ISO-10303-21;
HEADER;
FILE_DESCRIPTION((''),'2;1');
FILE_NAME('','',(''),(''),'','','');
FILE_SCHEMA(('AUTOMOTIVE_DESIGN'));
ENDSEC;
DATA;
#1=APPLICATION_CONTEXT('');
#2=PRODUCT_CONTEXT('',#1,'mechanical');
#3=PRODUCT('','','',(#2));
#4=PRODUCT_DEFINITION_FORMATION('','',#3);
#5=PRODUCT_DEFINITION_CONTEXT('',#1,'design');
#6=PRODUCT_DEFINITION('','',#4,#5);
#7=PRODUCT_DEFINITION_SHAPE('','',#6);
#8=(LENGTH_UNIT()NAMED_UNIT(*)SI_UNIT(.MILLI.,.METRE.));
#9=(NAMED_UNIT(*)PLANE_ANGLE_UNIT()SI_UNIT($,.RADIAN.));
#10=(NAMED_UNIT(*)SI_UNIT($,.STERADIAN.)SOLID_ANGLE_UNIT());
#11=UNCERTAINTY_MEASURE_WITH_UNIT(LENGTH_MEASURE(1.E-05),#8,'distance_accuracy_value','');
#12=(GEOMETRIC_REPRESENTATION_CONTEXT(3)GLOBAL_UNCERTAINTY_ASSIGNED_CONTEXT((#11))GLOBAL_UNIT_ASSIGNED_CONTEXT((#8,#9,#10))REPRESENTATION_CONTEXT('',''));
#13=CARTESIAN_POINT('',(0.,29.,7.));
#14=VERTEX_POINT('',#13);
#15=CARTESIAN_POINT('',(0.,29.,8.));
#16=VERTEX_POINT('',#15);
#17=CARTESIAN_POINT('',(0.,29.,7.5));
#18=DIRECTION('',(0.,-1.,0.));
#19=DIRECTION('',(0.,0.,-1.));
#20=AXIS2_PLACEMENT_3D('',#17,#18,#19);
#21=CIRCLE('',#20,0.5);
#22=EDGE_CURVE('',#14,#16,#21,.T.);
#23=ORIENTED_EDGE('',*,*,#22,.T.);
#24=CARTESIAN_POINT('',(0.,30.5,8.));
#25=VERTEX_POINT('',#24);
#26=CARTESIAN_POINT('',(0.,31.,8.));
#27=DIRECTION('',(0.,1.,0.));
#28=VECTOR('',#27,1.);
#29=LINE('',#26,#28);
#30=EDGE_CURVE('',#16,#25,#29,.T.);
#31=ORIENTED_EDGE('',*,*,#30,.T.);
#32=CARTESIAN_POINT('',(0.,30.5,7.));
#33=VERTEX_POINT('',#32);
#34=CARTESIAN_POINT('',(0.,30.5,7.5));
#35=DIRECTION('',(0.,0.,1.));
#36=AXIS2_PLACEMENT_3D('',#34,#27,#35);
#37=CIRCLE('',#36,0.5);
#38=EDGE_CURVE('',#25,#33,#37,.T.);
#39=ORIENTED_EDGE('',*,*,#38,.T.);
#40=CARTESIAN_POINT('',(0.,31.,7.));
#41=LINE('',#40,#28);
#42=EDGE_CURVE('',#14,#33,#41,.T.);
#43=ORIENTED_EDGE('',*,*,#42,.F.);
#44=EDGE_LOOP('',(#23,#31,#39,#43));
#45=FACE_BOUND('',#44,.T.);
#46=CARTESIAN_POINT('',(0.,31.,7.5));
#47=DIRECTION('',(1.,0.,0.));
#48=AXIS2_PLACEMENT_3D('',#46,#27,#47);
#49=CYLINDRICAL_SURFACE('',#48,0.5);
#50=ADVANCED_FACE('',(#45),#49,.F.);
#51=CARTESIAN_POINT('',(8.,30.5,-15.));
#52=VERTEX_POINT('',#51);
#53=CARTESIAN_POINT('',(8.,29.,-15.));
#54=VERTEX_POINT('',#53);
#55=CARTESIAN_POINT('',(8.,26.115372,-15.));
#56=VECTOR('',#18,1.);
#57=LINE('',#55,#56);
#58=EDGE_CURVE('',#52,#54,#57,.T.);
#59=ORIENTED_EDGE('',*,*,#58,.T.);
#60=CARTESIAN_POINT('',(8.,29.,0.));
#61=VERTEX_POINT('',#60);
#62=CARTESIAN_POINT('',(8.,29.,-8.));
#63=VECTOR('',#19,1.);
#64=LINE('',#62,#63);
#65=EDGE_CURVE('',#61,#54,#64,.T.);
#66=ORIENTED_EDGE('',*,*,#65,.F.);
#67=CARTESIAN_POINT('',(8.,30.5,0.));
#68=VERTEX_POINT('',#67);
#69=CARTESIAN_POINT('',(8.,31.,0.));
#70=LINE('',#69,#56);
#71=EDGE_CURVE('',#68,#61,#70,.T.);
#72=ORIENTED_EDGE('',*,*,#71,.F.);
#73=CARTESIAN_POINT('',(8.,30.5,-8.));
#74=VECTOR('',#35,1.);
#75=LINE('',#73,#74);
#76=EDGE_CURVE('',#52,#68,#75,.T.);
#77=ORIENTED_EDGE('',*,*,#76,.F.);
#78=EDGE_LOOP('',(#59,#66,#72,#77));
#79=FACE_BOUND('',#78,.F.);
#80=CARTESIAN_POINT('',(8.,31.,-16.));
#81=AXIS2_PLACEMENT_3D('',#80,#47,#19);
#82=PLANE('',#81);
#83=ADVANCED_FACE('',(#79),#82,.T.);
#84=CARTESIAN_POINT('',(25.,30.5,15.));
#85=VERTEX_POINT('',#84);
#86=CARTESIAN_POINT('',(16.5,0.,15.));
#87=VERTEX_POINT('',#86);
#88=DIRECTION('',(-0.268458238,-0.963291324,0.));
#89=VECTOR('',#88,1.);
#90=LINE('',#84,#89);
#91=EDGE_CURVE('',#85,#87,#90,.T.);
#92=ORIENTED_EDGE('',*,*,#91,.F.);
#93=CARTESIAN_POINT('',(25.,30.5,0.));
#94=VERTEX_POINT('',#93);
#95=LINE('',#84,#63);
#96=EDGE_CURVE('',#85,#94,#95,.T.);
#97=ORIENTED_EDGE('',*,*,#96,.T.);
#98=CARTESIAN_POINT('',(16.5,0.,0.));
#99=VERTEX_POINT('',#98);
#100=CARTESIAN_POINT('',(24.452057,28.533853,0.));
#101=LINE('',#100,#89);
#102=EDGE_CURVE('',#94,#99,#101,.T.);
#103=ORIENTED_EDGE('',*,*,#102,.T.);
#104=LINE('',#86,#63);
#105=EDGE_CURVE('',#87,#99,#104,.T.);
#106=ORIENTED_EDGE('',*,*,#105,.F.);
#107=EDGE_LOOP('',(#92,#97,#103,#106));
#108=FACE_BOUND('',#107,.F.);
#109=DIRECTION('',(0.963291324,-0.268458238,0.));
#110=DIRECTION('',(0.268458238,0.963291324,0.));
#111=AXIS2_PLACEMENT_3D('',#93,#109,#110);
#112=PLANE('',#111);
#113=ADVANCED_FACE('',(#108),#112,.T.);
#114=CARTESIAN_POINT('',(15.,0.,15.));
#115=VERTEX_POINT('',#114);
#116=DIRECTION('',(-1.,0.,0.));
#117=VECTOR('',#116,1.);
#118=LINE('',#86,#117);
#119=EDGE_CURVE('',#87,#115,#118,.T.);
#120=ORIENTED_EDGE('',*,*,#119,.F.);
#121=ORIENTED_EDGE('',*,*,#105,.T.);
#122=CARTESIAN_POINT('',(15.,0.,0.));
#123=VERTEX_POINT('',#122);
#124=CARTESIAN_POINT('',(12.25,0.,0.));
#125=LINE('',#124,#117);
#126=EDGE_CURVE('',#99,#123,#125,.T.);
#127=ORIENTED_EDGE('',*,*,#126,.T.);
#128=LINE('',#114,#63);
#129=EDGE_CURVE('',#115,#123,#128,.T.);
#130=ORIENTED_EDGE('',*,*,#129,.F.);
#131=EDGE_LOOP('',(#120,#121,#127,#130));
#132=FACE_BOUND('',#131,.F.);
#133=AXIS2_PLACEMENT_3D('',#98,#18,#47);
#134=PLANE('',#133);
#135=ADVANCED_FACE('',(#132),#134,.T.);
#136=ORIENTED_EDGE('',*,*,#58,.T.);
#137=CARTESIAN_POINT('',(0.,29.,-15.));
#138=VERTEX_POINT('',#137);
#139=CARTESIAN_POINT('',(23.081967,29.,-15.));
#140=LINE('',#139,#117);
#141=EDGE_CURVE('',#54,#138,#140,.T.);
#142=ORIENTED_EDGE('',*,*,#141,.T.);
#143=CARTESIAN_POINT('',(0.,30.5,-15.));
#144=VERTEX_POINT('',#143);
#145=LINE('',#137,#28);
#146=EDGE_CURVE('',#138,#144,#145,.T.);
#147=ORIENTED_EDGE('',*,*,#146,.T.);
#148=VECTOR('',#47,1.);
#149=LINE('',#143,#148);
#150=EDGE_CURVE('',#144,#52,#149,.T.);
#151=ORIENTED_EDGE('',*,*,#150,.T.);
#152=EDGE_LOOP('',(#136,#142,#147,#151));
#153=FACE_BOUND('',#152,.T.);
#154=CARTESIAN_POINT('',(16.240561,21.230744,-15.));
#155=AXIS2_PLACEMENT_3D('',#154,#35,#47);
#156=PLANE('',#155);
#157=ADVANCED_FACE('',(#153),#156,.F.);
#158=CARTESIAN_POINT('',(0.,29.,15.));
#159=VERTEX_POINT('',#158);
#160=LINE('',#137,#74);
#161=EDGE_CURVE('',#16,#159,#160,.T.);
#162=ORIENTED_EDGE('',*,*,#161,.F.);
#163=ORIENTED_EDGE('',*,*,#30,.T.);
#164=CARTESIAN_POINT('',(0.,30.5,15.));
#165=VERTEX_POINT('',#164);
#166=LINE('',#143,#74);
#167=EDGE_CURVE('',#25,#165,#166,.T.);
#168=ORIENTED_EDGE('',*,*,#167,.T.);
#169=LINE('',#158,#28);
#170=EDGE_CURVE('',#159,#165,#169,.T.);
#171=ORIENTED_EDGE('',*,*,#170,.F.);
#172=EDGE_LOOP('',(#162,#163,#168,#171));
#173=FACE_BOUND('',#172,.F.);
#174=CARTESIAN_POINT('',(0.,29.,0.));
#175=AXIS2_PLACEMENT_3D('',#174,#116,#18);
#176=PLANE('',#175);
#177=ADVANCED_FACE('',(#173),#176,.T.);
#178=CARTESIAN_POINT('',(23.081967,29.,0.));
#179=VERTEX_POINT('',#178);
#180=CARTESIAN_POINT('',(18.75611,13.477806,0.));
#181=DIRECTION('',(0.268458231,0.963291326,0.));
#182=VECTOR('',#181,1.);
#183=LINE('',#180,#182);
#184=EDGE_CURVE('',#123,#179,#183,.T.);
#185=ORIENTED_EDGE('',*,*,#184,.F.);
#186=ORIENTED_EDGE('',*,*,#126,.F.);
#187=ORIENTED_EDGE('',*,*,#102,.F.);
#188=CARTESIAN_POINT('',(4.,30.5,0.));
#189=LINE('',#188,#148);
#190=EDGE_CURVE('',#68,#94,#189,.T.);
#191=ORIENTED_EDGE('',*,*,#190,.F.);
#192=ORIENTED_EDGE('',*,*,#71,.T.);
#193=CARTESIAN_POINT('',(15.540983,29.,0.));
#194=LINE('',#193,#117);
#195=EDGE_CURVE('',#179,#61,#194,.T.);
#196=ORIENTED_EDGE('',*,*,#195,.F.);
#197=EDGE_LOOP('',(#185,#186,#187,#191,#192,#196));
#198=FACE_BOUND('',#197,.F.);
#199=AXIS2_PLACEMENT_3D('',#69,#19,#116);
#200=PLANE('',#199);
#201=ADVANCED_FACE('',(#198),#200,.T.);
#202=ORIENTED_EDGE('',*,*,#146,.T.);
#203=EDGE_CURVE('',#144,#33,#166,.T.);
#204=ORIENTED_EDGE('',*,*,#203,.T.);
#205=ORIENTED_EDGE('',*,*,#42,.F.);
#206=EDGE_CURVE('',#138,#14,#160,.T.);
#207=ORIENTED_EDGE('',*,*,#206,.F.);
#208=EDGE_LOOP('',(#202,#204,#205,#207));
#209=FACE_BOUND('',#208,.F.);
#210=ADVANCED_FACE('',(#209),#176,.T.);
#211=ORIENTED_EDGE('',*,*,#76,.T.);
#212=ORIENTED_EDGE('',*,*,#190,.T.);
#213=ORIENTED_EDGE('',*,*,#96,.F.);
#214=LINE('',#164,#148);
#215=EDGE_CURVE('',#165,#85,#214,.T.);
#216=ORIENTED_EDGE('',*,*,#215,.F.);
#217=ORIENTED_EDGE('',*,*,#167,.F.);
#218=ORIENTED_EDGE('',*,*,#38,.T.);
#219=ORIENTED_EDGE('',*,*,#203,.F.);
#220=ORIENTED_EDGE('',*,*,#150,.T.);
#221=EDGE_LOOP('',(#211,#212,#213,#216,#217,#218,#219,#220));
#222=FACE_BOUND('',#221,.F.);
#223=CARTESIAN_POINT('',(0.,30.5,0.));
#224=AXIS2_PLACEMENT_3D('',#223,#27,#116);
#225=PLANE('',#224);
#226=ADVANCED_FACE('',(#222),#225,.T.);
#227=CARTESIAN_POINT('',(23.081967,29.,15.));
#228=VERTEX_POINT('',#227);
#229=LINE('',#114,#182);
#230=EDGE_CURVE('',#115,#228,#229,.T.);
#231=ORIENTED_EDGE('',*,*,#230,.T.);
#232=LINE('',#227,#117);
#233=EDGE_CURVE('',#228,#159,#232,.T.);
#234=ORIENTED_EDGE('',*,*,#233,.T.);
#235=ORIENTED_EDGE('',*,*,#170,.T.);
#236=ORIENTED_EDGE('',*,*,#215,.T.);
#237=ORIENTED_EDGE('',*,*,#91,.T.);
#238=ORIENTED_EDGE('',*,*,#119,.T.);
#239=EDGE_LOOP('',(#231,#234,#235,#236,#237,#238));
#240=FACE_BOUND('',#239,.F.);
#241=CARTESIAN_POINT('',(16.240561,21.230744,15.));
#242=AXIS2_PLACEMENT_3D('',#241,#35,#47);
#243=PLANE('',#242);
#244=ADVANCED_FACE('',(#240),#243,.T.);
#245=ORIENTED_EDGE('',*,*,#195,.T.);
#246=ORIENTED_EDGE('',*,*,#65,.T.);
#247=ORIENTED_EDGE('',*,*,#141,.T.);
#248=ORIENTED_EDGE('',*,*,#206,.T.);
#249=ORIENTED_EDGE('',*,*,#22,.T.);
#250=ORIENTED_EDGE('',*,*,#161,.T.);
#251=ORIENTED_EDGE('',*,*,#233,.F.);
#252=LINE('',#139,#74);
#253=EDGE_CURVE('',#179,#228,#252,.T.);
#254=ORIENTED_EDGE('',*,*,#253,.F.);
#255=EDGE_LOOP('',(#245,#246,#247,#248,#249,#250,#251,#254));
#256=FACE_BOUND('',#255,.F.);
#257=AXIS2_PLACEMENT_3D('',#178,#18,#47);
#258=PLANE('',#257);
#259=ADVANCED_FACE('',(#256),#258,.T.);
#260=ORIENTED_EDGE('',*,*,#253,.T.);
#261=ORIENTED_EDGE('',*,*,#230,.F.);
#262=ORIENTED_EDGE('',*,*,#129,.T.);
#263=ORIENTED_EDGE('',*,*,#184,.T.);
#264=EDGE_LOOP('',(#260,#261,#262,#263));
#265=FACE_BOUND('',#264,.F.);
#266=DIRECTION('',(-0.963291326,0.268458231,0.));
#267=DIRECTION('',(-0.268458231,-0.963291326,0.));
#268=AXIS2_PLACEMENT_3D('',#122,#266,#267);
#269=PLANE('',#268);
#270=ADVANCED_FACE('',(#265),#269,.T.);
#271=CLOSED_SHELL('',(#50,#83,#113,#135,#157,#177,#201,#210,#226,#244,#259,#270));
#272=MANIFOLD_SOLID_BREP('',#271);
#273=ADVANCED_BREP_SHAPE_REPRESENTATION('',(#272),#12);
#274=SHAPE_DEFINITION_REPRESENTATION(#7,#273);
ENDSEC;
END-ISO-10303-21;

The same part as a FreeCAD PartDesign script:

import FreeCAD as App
import Part
import Sketcher
from FreeCAD import Vector

doc = App.newDocument("Part")
body = doc.addObject("PartDesign::Body", "Body")
body.AllowCompound = True

# Sketch on XZ plane
sketch1 = body.newObject("Sketcher::SketchObject", "Sketch")
sketch1.AttachmentSupport = (doc.getObject("XZ_Plane"), [""])
sketch1.MapMode = "FlatFace"
sketch1.AttachmentOffset = App.Placement(Vector(0, 0, -31), App.Rotation())
sketch1.addGeometry([
    Part.Circle(Vector(0, 7.5, 0), Vector(0, 0, 1), 0.5),  # 0
    Part.LineSegment(Vector(-8, 0, 0), Vector(-8, -16, 0)),  # 1
    Part.LineSegment(Vector(-8, -16, 0), Vector(-26, -16, 0)),  # 2
    Part.LineSegment(Vector(-26, -16, 0), Vector(-26, 0, 0)),  # 3
    Part.LineSegment(Vector(-26, 0, 0), Vector(-8, 0, 0)),  # 4
], False)
sketch1.addConstraint([
    Sketcher.Constraint("Coincident", 1, 2, 2, 1),
    Sketcher.Constraint("Coincident", 2, 2, 3, 1),
    Sketcher.Constraint("Coincident", 3, 2, 4, 1),
    Sketcher.Constraint("Coincident", 4, 2, 1, 1),
    Sketcher.Constraint("Vertical", 1),
    Sketcher.Constraint("Horizontal", 2),
    Sketcher.Constraint("Vertical", 3),
    Sketcher.Constraint("Horizontal", 4),
    Sketcher.Constraint("PointOnObject", 0, 3, -2),
    Sketcher.Constraint("PointOnObject", 3, 2, -1),
    Sketcher.Constraint("Diameter", 0, 1.0),
    Sketcher.Constraint("DistanceX", 2, 2, 2, 1, 18.0),
    Sketcher.Constraint("DistanceY", 1, 2, 1, 1, 16.0),
    Sketcher.Constraint("DistanceX", 1, 2, -1, 1, 8.0),
    Sketcher.Constraint("DistanceY", -1, 1, 0, 3, 7.5),
])
pad1 = body.newObject("PartDesign::Pad", "Pad")
pad1.Profile = sketch1
pad1.Length = 32
body2 = doc.addObject("PartDesign::Body", "Body001")

# Sketch on XY plane
sketch2 = body2.newObject("Sketcher::SketchObject", "Sketch001")
sketch2.AttachmentSupport = (doc.getObject("XY_Plane001"), [""])
sketch2.MapMode = "FlatFace"
sketch2.addGeometry([
    Part.LineSegment(Vector(-15, 0, 0), Vector(-23.1, 29, 0)),  # 0
    Part.LineSegment(Vector(-23.1, 29, 0), Vector(0, 29, 0)),  # 1
    Part.LineSegment(Vector(0, 29, 0), Vector(0, 30.5, 0)),  # 2
    Part.LineSegment(Vector(0, 30.5, 0), Vector(-25, 30.5, 0)),  # 3
    Part.LineSegment(Vector(-25, 30.5, 0), Vector(-16.5, 0, 0)),  # 4
    Part.LineSegment(Vector(-16.5, 0, 0), Vector(-15, 0, 0)),  # 5
], False)
sketch2.addConstraint([
    Sketcher.Constraint("Coincident", 0, 2, 1, 1),
    Sketcher.Constraint("Coincident", 1, 2, 2, 1),
    Sketcher.Constraint("Coincident", 2, 2, 3, 1),
    Sketcher.Constraint("Coincident", 3, 2, 4, 1),
    Sketcher.Constraint("Coincident", 4, 2, 5, 1),
    Sketcher.Constraint("Coincident", 5, 2, 0, 1),
    Sketcher.Constraint("Horizontal", 1),
    Sketcher.Constraint("Vertical", 2),
    Sketcher.Constraint("Horizontal", 3),
    Sketcher.Constraint("Horizontal", 5),
    Sketcher.Constraint("PointOnObject", 1, 2, -2),
    Sketcher.Constraint("PointOnObject", 4, 2, -1),
    Sketcher.Constraint("Parallel", 0, 4),
    Sketcher.Constraint("Equal", 5, 2),
    Sketcher.Constraint("DistanceX", 3, 2, 3, 1, 25.0),
    Sketcher.Constraint("DistanceX", 5, 1, 5, 2, 1.5),
    Sketcher.Constraint("DistanceY", -1, 1, 0, 2, 29.0),
    Sketcher.Constraint("DistanceX", 5, 2, -1, 1, 15.0),
])
pad2 = body2.newObject("PartDesign::Pad", "Pad001")
pad2.Profile = sketch2
pad2.Length = 30
pad2.Midplane = True
doc.recompute()

boolean = body2.newObject("PartDesign::Boolean", "Boolean")
boolean.Type = "Cut"
boolean.addObjects([body])
body3 = doc.addObject("PartDesign::Body", "Body002")
doc.recompute()

mirroring = doc.addObject("Part::Mirroring", "Mirroring")
mirroring.Source = body2
mirroring.Base = Vector(0, 0, 0)
mirroring.Normal = Vector(1, 0, 0)
body3.BaseFeature = mirroring
doc.recompute()
body2.Visibility = False
mirroring.Visibility = False

doc.recompute()
